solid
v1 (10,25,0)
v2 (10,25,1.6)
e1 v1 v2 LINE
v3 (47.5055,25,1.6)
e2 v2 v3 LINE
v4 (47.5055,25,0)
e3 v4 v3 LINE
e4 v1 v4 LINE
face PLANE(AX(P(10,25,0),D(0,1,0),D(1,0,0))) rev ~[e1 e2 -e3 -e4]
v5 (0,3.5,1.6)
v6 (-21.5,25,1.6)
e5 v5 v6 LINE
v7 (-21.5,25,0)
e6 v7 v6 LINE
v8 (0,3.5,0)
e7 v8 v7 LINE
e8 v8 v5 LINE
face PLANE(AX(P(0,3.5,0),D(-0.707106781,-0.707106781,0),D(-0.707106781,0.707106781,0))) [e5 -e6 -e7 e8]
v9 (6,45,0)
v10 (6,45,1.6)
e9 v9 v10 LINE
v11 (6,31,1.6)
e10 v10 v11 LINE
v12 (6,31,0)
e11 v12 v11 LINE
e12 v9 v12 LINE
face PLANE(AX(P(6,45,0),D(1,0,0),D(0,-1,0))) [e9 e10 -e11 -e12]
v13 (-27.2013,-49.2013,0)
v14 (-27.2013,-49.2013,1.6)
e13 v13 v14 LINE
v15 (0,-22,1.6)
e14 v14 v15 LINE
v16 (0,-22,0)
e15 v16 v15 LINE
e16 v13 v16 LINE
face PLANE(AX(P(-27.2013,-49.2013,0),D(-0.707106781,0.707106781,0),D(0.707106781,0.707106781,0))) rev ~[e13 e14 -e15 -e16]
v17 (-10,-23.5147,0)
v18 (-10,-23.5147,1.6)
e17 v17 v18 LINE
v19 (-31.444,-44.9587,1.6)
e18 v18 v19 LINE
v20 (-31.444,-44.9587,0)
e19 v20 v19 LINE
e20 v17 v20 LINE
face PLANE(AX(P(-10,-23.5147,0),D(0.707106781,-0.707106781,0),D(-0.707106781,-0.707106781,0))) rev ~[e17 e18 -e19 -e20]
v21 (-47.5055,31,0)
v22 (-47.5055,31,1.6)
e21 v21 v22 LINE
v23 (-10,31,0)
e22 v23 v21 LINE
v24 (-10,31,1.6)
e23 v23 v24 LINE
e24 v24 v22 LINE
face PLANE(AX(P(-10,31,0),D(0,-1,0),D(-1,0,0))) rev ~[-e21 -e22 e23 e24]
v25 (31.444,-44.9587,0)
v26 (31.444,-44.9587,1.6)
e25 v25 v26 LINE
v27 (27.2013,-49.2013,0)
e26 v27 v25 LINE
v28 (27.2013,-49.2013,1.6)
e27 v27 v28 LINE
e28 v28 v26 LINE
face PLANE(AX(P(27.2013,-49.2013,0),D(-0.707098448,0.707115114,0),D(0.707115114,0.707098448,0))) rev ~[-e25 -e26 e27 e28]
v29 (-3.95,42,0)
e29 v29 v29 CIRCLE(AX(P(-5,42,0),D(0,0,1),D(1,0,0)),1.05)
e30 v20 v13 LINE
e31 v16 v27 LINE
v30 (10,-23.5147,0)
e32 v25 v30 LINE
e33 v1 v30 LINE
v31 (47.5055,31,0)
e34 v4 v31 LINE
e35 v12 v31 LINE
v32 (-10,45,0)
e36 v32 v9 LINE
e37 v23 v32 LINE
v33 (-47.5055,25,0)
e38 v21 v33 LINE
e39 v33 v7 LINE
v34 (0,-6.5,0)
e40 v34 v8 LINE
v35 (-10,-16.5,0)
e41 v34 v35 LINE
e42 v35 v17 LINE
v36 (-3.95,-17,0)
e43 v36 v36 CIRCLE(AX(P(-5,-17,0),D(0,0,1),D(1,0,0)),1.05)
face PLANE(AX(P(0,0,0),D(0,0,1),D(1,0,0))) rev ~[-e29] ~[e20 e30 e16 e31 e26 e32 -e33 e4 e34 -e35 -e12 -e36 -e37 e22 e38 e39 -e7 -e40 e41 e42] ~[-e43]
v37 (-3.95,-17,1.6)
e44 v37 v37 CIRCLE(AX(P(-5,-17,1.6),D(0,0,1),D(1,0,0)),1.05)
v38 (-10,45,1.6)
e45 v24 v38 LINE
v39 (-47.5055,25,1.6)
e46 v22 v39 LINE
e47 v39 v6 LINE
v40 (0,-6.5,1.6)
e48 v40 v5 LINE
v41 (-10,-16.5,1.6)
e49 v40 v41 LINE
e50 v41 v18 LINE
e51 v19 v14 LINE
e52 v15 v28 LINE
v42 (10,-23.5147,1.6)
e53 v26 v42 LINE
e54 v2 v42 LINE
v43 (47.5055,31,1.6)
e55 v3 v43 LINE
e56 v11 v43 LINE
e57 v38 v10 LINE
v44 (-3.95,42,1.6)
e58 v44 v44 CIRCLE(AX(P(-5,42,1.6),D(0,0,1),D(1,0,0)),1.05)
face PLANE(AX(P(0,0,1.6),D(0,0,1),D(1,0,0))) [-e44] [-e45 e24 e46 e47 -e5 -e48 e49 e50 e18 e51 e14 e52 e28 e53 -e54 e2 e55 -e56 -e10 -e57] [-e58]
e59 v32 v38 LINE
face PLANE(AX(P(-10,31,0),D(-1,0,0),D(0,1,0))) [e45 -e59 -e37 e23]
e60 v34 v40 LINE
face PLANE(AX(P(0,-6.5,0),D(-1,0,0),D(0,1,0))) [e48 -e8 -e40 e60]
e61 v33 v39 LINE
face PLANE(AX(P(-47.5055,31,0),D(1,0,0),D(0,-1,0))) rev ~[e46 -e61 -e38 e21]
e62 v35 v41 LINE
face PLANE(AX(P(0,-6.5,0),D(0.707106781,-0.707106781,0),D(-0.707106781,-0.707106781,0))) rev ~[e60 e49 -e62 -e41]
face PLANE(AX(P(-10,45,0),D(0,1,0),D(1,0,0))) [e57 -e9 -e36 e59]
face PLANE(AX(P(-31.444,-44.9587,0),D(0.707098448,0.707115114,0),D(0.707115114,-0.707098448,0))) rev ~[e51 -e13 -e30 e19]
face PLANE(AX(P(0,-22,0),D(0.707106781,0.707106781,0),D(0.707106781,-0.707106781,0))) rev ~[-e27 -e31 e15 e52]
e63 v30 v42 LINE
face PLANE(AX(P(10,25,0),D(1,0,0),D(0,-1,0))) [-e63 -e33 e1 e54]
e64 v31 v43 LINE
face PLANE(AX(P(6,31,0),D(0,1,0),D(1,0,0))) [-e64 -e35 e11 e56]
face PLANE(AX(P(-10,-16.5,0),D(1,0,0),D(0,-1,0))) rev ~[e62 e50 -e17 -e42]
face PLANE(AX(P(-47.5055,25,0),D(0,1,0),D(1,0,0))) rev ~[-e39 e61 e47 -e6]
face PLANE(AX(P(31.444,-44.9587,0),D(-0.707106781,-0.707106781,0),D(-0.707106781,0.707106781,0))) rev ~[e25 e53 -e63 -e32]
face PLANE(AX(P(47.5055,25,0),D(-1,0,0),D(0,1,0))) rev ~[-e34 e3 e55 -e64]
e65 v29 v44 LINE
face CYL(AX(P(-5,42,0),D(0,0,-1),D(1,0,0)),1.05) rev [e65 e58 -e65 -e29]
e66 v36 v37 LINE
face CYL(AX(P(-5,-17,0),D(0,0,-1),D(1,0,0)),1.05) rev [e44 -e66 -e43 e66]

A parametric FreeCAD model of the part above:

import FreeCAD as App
import Part
import Sketcher
from FreeCAD import Vector
Q = App.Units.Quantity


def add_polygon(sketch, points):
    """Adds a closed chain of lines whose ends are joined by coincident constraints."""
    first, n = sketch.GeometryCount, len(points)
    for a, b in zip(points, points[1:] + points[:1]):
        sketch.addGeometry(Part.LineSegment(App.Vector(*a, 0), App.Vector(*b, 0)), False)
    for i in range(n):
        sketch.addConstraint(Sketcher.Constraint("Coincident", first + i, 2, first + (i + 1) % n, 1))

doc = App.newDocument("Part")
body = doc.addObject("PartDesign::Body", "Body")

# Sketch on XY plane
sketch1 = body.newObject("Sketcher::SketchObject", "Sketch")
sketch1.AttachmentSupport = (doc.getObject("XY_Plane"), [""])
sketch1.MapMode = "FlatFace"
add_polygon(sketch1, [(10, -23.5), (10, 25), (47.5, 25), (47.5, 31), (6, 31), (6, 45), (-10, 45), (-10, 31), (-47.5, 31), (-47.5, 25), (-21.5, 25), (0, 3.5), (0, -6.5), (-10, -16.5), (-10, -23.5), (-31.4, -45), (-27.2, -49.2), (0, -22), (27.2, -49.2), (31.4, -45)])  # lines 0-19
sketch1.addGeometry(Part.Circle(Vector(-5, -17, 0), Vector(0, 0, 1), 1.1), False)  # 20
sketch1.addGeometry(Part.Circle(Vector(-5, 42, 0), Vector(0, 0, 1), 1.1), False)  # 21
sketch1.addConstraint([
    Sketcher.Constraint("Vertical", 0),
    Sketcher.Constraint("Horizontal", 1),
    Sketcher.Constraint("Vertical", 2),
    Sketcher.Constraint("Horizontal", 3),
    Sketcher.Constraint("Vertical", 4),
    Sketcher.Constraint("Horizontal", 5),
    Sketcher.Constraint("Vertical", 6),
    Sketcher.Constraint("Horizontal", 7),
    Sketcher.Constraint("Vertical", 8),
    Sketcher.Constraint("Horizontal", 9),
    Sketcher.Constraint("Vertical", 11),
    Sketcher.Constraint("Vertical", 13),
    Sketcher.Constraint("Equal", 20, 21),
    Sketcher.Constraint("Symmetric", 2, 2, 7, 2, -2),
    Sketcher.Constraint("Symmetric", 15, 2, 17, 2, -2),
    Sketcher.Constraint("Symmetric", 14, 2, 18, 2, -2),
    Sketcher.Constraint("Symmetric", 13, 2, 19, 2, -2),
    Sketcher.Constraint("PointOnObject", 10, 2, -2),
    Sketcher.Constraint("PointOnObject", 16, 2, -2),
    Sketcher.Constraint("Perpendicular", 10, 12),
    Sketcher.Constraint("Parallel", 12, 14),
    Sketcher.Constraint("Perpendicular", 14, 15),
    Sketcher.Constraint("Perpendicular", 15, 16),
    Sketcher.Constraint("Perpendicular", 16, 17),
    Sketcher.Constraint("Horizontal", 1, 2, 8, 2),
    Sketcher.Constraint("Vertical", 20, 3, 21, 3),
    Sketcher.Constraint("Vertical", 6, 2, 12, 2),
    Sketcher.Constraint("Diameter", 20, Q("2.1 mm")),
    Sketcher.Constraint("DistanceY", 2, 1, 2, 2, Q("6 mm")),
    Sketcher.Constraint("DistanceY", 11, 2, 11, 1, Q("10 mm")),
    Sketcher.Constraint("Distance", 15, Q("6 mm")),
    Sketcher.Constraint("DistanceX", 20, 3, -1, 1, Q("5 mm")),
    Sketcher.Constraint("DistanceY", 20, 3, -1, 1, Q("17 mm")),
    Sketcher.Constraint("DistanceY", -1, 1, 21, 3, Q("42 mm")),
    Sketcher.Constraint("DistanceX", -1, 1, 0, 2, Q("10 mm")),
    Sketcher.Constraint("DistanceY", -1, 1, 2, 2, Q("31 mm")),
    Sketcher.Constraint("DistanceX", -1, 1, 3, 2, Q("6 mm")),
    Sketcher.Constraint("DistanceY", -1, 1, 4, 2, Q("45 mm")),
    Sketcher.Constraint("DistanceY", 16, 2, -1, 1, Q("22 mm")),
    Sketcher.Constraint("DistanceX", 9, 2, -1, 1, Q("21.5 mm")),
    Sketcher.Constraint("DistanceX", 1, 1, 1, 2, Q("37.5055 mm")),
    Sketcher.Constraint("DistanceX", 14, 2, -1, 1, Q("31.444 mm")),
])
pad1 = body.newObject("PartDesign::Pad", "Pad")
pad1.Profile = sketch1
pad1.Length = 1.6

doc.recompute()
